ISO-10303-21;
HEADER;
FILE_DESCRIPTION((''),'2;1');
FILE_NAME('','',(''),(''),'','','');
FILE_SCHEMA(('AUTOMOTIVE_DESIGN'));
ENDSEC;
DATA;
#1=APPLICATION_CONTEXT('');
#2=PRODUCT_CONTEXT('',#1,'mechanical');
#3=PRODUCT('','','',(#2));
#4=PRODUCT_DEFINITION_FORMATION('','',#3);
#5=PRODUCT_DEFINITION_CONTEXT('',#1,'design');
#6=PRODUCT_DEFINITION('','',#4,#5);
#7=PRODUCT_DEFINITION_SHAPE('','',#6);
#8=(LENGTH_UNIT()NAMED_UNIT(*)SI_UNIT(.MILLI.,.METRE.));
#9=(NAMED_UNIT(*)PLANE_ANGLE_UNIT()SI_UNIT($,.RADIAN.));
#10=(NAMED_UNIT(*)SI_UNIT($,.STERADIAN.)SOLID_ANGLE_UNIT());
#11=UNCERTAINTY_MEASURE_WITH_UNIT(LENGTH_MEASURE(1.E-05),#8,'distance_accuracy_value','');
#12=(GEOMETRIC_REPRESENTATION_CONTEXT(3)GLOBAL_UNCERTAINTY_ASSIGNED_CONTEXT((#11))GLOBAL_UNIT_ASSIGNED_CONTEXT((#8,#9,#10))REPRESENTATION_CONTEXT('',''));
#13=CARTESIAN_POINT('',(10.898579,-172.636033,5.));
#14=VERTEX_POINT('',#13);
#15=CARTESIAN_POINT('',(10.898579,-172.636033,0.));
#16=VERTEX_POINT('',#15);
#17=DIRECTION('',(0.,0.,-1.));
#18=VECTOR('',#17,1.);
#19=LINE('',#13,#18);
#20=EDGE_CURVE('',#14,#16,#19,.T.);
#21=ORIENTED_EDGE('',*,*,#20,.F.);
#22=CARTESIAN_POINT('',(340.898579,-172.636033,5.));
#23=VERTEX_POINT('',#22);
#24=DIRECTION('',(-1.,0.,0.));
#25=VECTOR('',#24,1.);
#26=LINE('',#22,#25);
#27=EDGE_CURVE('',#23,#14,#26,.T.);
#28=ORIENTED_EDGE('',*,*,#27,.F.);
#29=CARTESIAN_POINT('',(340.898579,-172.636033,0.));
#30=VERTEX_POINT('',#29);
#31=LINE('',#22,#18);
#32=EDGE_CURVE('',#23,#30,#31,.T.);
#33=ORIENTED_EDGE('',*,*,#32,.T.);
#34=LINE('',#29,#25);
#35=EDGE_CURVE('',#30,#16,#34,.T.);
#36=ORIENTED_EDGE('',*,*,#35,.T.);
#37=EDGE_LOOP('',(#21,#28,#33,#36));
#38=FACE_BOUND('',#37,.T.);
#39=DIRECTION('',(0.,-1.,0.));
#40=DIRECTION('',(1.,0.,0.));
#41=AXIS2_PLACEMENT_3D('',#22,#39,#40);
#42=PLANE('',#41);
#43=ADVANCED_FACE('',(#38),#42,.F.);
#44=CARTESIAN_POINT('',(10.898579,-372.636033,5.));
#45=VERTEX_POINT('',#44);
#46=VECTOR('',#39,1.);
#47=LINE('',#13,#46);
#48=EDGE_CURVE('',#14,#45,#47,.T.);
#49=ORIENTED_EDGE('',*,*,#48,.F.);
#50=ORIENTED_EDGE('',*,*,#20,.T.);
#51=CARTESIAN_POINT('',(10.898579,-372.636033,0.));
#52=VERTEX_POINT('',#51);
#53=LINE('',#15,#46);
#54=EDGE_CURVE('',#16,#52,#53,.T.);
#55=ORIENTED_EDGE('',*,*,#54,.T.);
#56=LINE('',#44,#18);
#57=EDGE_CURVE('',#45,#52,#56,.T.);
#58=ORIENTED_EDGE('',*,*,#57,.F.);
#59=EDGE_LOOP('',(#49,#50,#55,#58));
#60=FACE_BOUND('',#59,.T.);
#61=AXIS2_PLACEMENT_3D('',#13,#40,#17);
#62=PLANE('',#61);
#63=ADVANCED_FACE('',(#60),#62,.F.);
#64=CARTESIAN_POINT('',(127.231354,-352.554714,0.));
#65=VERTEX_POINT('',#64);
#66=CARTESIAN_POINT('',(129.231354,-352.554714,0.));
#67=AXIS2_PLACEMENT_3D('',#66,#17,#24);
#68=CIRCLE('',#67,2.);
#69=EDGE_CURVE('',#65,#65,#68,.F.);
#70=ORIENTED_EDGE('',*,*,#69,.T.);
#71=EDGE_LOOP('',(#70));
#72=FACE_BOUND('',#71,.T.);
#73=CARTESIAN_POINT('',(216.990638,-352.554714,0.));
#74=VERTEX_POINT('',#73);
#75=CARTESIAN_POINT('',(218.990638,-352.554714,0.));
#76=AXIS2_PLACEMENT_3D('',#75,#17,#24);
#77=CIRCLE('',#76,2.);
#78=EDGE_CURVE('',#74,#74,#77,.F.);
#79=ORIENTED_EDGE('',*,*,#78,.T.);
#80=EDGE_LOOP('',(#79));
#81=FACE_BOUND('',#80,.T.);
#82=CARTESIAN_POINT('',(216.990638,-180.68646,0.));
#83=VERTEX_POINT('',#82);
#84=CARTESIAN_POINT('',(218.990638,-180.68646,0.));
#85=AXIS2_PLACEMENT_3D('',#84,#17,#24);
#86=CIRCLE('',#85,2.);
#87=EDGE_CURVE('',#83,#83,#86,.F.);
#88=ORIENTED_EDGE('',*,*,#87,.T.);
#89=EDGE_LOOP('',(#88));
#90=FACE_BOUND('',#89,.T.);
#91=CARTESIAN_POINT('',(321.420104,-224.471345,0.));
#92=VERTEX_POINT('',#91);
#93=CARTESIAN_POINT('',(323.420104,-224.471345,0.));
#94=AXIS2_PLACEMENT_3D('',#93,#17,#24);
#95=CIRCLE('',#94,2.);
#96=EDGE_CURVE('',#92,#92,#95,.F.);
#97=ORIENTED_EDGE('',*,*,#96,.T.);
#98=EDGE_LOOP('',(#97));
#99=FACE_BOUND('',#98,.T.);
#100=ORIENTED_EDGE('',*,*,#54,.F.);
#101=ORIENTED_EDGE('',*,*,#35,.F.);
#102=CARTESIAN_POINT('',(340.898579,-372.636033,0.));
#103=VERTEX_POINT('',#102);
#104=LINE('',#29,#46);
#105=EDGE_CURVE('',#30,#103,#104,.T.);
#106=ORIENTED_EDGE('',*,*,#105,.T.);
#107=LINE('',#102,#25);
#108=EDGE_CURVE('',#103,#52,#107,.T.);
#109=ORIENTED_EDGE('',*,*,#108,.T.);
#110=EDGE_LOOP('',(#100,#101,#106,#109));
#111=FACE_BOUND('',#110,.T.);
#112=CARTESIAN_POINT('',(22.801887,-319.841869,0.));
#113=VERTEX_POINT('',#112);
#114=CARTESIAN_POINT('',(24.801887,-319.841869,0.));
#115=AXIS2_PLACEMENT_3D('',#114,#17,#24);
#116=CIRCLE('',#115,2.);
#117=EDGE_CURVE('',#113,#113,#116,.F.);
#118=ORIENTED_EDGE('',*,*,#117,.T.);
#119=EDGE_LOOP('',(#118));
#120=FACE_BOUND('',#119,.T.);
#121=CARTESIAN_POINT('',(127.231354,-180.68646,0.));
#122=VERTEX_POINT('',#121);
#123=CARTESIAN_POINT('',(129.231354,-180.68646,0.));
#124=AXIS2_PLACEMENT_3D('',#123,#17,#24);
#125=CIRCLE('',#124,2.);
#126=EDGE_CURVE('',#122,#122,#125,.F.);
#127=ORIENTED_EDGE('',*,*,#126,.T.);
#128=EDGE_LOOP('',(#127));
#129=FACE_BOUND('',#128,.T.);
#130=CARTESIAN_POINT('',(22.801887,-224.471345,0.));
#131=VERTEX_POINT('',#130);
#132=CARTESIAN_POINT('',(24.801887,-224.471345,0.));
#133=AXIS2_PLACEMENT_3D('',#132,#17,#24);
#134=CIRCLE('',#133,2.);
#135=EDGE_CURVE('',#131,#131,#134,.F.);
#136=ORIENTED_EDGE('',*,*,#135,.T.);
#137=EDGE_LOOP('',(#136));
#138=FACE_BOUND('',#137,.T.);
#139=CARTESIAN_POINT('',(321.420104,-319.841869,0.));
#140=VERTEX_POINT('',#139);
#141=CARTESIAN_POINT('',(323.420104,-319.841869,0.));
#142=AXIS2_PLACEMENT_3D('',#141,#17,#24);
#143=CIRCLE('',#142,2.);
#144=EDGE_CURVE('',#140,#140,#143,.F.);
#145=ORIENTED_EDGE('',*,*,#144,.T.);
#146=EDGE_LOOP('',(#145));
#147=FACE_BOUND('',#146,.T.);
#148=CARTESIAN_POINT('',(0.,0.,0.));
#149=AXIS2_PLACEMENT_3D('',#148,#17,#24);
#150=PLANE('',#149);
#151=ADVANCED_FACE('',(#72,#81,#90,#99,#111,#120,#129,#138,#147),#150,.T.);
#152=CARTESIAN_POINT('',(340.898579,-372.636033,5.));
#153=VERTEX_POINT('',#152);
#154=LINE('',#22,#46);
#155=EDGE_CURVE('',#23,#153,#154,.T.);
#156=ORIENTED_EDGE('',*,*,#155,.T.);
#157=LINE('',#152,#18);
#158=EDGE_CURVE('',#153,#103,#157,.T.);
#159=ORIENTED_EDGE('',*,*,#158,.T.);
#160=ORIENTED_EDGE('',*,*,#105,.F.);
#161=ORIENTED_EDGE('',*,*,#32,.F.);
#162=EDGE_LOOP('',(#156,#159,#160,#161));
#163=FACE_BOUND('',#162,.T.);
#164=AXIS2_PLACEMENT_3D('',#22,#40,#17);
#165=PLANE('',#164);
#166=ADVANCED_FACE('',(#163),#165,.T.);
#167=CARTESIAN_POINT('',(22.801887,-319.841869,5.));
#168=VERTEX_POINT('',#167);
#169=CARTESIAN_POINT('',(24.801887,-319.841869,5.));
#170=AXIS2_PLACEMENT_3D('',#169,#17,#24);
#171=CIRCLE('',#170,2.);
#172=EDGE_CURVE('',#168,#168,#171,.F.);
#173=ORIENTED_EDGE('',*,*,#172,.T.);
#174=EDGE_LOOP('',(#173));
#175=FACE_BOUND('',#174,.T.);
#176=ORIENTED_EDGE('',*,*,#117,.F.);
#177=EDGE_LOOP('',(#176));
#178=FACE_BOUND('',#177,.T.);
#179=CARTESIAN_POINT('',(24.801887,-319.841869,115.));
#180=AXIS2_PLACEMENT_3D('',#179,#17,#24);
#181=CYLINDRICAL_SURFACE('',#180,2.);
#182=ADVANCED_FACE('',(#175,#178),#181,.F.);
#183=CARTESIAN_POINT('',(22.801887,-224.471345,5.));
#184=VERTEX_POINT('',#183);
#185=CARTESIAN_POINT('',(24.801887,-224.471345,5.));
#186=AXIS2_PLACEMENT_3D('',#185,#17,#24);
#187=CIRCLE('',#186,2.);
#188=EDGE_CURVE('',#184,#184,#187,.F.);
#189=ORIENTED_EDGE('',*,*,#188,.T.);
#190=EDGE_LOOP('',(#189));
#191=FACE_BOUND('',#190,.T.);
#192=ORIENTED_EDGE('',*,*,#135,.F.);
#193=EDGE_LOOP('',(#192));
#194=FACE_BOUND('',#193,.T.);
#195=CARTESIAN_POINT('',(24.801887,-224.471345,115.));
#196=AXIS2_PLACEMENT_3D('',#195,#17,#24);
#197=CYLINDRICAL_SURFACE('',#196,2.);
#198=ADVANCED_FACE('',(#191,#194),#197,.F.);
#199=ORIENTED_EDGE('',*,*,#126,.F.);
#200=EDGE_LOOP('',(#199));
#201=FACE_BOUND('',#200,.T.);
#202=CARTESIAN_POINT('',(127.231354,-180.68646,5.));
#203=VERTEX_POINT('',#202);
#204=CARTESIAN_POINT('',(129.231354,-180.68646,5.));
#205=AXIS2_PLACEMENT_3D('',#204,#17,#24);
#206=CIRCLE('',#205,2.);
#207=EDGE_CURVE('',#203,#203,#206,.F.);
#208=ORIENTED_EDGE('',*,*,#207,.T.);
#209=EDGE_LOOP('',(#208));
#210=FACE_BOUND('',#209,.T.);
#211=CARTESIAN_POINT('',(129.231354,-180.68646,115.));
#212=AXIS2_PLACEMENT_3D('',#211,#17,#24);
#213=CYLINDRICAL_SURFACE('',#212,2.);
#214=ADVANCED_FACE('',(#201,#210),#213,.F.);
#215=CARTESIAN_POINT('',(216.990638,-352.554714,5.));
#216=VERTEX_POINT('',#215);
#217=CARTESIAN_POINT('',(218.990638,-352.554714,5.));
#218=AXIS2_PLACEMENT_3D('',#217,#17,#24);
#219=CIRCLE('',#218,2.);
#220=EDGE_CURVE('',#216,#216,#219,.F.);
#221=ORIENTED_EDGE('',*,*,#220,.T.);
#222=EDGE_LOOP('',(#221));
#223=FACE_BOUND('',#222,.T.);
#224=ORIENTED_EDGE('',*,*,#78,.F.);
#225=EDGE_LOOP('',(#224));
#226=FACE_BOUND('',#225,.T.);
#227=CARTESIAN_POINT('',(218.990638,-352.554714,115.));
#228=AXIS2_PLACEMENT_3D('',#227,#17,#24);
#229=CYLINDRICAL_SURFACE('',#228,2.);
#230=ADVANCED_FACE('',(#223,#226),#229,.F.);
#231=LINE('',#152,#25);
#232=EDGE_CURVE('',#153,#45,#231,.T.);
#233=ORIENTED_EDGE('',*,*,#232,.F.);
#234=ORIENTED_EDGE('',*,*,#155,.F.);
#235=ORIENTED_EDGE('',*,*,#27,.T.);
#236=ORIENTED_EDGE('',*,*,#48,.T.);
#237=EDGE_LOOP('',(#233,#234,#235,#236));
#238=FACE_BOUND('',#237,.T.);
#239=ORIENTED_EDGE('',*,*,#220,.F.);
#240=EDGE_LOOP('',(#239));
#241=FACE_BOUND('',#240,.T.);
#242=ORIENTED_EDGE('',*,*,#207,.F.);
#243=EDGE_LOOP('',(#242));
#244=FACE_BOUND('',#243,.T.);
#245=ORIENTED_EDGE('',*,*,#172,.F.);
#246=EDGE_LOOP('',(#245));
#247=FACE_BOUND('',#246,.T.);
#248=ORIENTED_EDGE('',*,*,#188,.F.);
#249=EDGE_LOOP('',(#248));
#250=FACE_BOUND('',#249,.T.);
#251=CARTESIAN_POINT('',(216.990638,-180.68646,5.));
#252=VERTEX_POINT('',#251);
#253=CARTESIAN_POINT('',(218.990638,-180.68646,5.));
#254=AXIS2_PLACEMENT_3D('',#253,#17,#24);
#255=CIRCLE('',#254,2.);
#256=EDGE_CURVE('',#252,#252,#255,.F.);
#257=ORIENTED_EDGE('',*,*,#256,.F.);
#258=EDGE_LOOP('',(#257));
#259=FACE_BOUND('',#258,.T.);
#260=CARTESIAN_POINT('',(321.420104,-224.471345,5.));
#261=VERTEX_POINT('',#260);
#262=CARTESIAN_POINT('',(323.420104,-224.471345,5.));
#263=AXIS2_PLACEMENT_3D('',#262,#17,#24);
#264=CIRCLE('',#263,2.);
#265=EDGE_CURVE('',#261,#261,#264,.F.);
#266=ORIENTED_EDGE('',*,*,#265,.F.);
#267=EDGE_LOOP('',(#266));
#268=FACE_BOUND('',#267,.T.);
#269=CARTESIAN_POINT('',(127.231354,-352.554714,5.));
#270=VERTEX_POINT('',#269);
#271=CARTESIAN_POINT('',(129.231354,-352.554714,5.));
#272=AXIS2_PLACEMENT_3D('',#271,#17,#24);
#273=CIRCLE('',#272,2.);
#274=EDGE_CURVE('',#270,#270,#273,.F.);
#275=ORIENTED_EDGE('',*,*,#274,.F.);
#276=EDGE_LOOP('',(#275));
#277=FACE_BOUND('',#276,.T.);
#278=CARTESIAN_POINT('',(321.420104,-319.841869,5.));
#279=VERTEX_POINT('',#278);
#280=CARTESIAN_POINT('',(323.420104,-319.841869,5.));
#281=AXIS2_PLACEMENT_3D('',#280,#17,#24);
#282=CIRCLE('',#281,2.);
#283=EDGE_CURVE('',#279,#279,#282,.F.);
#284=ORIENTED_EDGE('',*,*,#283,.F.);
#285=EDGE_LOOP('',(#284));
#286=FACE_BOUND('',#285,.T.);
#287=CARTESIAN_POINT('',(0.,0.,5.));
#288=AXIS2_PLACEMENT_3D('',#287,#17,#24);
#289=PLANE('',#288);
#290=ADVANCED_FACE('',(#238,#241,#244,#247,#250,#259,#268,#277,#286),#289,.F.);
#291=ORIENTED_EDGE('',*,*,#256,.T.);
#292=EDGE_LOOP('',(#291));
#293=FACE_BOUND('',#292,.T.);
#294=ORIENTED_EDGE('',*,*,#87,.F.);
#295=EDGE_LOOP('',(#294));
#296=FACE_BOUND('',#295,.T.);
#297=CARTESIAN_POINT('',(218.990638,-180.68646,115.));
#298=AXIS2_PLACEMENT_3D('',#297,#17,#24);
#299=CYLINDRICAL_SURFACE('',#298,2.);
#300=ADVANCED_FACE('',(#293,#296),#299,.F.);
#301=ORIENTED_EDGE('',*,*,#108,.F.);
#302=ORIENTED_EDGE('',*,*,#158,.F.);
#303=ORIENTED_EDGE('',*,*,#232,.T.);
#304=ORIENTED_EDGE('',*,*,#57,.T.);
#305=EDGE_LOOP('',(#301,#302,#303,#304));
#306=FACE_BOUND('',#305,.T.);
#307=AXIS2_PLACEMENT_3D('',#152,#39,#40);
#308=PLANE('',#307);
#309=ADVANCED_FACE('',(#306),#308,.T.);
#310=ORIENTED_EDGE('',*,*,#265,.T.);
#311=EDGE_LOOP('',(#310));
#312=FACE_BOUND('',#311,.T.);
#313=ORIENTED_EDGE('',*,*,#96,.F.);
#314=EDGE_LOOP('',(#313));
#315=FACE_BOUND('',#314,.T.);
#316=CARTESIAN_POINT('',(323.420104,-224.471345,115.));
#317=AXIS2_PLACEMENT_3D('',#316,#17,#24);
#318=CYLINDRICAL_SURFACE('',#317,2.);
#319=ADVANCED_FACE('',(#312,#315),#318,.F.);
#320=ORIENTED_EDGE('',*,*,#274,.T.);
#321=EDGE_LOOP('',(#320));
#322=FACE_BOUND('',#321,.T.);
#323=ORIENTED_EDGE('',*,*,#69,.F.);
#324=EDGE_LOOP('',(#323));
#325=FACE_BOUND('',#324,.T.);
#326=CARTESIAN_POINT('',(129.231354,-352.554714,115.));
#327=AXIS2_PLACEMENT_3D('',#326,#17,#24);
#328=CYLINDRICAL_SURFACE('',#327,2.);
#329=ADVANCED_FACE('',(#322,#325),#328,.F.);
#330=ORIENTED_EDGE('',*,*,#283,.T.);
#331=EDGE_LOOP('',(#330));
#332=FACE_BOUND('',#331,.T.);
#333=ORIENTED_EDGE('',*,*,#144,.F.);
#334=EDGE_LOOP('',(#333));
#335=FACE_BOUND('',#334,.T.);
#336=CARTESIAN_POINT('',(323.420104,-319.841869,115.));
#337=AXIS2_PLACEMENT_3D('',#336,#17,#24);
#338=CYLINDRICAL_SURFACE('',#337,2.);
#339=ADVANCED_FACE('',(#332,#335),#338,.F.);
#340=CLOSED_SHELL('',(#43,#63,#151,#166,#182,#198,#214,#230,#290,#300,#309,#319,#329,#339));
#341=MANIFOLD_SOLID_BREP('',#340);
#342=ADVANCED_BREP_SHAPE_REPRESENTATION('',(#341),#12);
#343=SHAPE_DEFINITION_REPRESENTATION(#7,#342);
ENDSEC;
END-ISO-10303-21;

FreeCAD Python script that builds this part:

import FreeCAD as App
import Part
import Sketcher

V = App.Vector
Q = App.Units.Quantity

doc = App.newDocument("Part")
params = doc.addObject("Spreadsheet::Sheet", "Params")
for row, (alias, value) in enumerate([
    ("sketch1_width", "330 mm"),
    ("sketch1_height", "200 mm"),
    ("pad1_length", "5 mm"),
    ("sketch2_diameter", "4 mm"),
], start=1):
    params.set(f"A{row}", alias)
    params.set(f"B{row}", "=" + value)
    params.setAlias(f"B{row}", alias)

body = doc.addObject("PartDesign::Body", "Body")

# Sketch on XY plane
sketch1 = body.newObject("Sketcher::SketchObject", "Sketch")
sketch1.AttachmentSupport = (doc.getObject("XY_Plane"), [""])
sketch1.MapMode = "FlatFace"
sketch1.addGeometry(Part.LineSegment(V(10.898579, -172.636033, 0), V(10.898579, -372.636033, 0)), False)
sketch1.addGeometry(Part.LineSegment(V(10.898579, -372.636033, 0), V(340.898579, -372.636033, 0)), False)
sketch1.addGeometry(Part.LineSegment(V(340.898579, -372.636033, 0), V(340.898579, -172.636033, 0)), False)
sketch1.addGeometry(Part.LineSegment(V(340.898579, -172.636033, 0), V(10.898579, -172.636033, 0)), False)
sketch1.addConstraint(Sketcher.Constraint("Coincident", 0, 2, 1, 1))
sketch1.addConstraint(Sketcher.Constraint("Coincident", 1, 2, 2, 1))
sketch1.addConstraint(Sketcher.Constraint("Coincident", 2, 2, 3, 1))
sketch1.addConstraint(Sketcher.Constraint("Coincident", 3, 2, 0, 1))
sketch1.addConstraint(Sketcher.Constraint("Vertical", 0))
sketch1.addConstraint(Sketcher.Constraint("Horizontal", 1))
sketch1.addConstraint(Sketcher.Constraint("Vertical", 2))
sketch1.addConstraint(Sketcher.Constraint("Horizontal", 3))
sketch1.addConstraint(Sketcher.Constraint("DistanceX", 1, 1, 1, 2, Q("330 mm")))
sketch1.addConstraint(Sketcher.Constraint("DistanceY", 0, 2, 0, 1, Q("200 mm")))
sketch1.addConstraint(Sketcher.Constraint("DistanceX", -1, 1, 0, 2, Q("10.898579 mm")))
sketch1.addConstraint(Sketcher.Constraint("DistanceY", 0, 2, -1, 1, Q("372.636033 mm")))
sketch1.setExpression("Constraints[8]", "Params.sketch1_width")
sketch1.setExpression("Constraints[9]", "Params.sketch1_height")
pad1 = body.newObject("PartDesign::Pad", "Pad")
pad1.Profile = sketch1
pad1.setExpression("Length", "Params.pad1_length")

# Sketch on XY plane
sketch2 = body.newObject("Sketcher::SketchObject", "Sketch001")
sketch2.AttachmentSupport = (doc.getObject("XY_Plane"), [""])
sketch2.MapMode = "FlatFace"
sketch2.AttachmentOffset = App.Placement(V(0, 0, 5), App.Rotation())
sketch2.addGeometry(Part.Circle(V(24.801887, -224.471345, 0), V(0, 0, 1), 2), False)
sketch2.addGeometry(Part.Circle(V(24.801887, -319.841869, 0), V(0, 0, 1), 2), False)
sketch2.addGeometry(Part.Circle(V(129.231354, -180.68646, 0), V(0, 0, 1), 2), False)
sketch2.addGeometry(Part.Circle(V(129.231354, -352.554714, 0), V(0, 0, 1), 2), False)
sketch2.addGeometry(Part.Circle(V(218.990638, -352.554714, 0), V(0, 0, 1), 2), False)
sketch2.addGeometry(Part.Circle(V(323.420104, -319.841869, 0), V(0, 0, 1), 2), False)
sketch2.addGeometry(Part.Circle(V(323.420104, -224.471345, 0), V(0, 0, 1), 2), False)
sketch2.addGeometry(Part.Circle(V(218.990638, -180.68646, 0), V(0, 0, 1), 2), False)
sketch2.addConstraint(Sketcher.Constraint("Equal", 0, 1))
sketch2.addConstraint(Sketcher.Constraint("Equal", 1, 2))
sketch2.addConstraint(Sketcher.Constraint("Equal", 2, 3))
sketch2.addConstraint(Sketcher.Constraint("Equal", 3, 4))
sketch2.addConstraint(Sketcher.Constraint("Equal", 4, 5))
sketch2.addConstraint(Sketcher.Constraint("Equal", 5, 6))
sketch2.addConstraint(Sketcher.Constraint("Equal", 6, 7))
sketch2.addConstraint(Sketcher.Constraint("Horizontal", 3, 3, 4, 3))
sketch2.addConstraint(Sketcher.Constraint("Horizontal", 1, 3, 5, 3))
sketch2.addConstraint(Sketcher.Constraint("Horizontal", 0, 3, 6, 3))
sketch2.addConstraint(Sketcher.Constraint("Horizontal", 2, 3, 7, 3))
sketch2.addConstraint(Sketcher.Constraint("Vertical", 0, 3, 1, 3))
sketch2.addConstraint(Sketcher.Constraint("Vertical", 2, 3, 3, 3))
sketch2.addConstraint(Sketcher.Constraint("Vertical", 5, 3, 6, 3))
sketch2.addConstraint(Sketcher.Constraint("Vertical", 4, 3, 7, 3))
sketch2.addConstraint(Sketcher.Constraint("Diameter", 0, Q("4 mm")))
sketch2.addConstraint(Sketcher.Constraint("DistanceY", 1, 3, -1, 1, Q("319.841869 mm")))
sketch2.addConstraint(Sketcher.Constraint("DistanceY", 2, 3, -1, 1, Q("180.68646 mm")))
sketch2.addConstraint(Sketcher.Constraint("DistanceX", -1, 1, 4, 3, Q("218.990638 mm")))
sketch2.addConstraint(Sketcher.Constraint("DistanceY", 3, 3, 0, 3, Q("128.083369 mm")))
sketch2.addConstraint(Sketcher.Constraint("DistanceX", 1, 3, 4, 3, Q("194.188751 mm")))
sketch2.addConstraint(Sketcher.Constraint("DistanceX", 3, 3, 5, 3, Q("194.188751 mm")))
sketch2.addConstraint(Sketcher.Constraint("DistanceY", 0, 3, -1, 1, Q("224.471345 mm")))
sketch2.addConstraint(Sketcher.Constraint("DistanceX", -1, 1, 2, 3, Q("129.231354 mm")))
sketch2.setExpression("Constraints[15]", "Params.sketch2_diameter")
pocket1 = body.newObject("PartDesign::Pocket", "Pocket")
pocket1.Profile = sketch2
pocket1.Type = "ThroughAll"
pocket1.Midplane = True

doc.recompute()
